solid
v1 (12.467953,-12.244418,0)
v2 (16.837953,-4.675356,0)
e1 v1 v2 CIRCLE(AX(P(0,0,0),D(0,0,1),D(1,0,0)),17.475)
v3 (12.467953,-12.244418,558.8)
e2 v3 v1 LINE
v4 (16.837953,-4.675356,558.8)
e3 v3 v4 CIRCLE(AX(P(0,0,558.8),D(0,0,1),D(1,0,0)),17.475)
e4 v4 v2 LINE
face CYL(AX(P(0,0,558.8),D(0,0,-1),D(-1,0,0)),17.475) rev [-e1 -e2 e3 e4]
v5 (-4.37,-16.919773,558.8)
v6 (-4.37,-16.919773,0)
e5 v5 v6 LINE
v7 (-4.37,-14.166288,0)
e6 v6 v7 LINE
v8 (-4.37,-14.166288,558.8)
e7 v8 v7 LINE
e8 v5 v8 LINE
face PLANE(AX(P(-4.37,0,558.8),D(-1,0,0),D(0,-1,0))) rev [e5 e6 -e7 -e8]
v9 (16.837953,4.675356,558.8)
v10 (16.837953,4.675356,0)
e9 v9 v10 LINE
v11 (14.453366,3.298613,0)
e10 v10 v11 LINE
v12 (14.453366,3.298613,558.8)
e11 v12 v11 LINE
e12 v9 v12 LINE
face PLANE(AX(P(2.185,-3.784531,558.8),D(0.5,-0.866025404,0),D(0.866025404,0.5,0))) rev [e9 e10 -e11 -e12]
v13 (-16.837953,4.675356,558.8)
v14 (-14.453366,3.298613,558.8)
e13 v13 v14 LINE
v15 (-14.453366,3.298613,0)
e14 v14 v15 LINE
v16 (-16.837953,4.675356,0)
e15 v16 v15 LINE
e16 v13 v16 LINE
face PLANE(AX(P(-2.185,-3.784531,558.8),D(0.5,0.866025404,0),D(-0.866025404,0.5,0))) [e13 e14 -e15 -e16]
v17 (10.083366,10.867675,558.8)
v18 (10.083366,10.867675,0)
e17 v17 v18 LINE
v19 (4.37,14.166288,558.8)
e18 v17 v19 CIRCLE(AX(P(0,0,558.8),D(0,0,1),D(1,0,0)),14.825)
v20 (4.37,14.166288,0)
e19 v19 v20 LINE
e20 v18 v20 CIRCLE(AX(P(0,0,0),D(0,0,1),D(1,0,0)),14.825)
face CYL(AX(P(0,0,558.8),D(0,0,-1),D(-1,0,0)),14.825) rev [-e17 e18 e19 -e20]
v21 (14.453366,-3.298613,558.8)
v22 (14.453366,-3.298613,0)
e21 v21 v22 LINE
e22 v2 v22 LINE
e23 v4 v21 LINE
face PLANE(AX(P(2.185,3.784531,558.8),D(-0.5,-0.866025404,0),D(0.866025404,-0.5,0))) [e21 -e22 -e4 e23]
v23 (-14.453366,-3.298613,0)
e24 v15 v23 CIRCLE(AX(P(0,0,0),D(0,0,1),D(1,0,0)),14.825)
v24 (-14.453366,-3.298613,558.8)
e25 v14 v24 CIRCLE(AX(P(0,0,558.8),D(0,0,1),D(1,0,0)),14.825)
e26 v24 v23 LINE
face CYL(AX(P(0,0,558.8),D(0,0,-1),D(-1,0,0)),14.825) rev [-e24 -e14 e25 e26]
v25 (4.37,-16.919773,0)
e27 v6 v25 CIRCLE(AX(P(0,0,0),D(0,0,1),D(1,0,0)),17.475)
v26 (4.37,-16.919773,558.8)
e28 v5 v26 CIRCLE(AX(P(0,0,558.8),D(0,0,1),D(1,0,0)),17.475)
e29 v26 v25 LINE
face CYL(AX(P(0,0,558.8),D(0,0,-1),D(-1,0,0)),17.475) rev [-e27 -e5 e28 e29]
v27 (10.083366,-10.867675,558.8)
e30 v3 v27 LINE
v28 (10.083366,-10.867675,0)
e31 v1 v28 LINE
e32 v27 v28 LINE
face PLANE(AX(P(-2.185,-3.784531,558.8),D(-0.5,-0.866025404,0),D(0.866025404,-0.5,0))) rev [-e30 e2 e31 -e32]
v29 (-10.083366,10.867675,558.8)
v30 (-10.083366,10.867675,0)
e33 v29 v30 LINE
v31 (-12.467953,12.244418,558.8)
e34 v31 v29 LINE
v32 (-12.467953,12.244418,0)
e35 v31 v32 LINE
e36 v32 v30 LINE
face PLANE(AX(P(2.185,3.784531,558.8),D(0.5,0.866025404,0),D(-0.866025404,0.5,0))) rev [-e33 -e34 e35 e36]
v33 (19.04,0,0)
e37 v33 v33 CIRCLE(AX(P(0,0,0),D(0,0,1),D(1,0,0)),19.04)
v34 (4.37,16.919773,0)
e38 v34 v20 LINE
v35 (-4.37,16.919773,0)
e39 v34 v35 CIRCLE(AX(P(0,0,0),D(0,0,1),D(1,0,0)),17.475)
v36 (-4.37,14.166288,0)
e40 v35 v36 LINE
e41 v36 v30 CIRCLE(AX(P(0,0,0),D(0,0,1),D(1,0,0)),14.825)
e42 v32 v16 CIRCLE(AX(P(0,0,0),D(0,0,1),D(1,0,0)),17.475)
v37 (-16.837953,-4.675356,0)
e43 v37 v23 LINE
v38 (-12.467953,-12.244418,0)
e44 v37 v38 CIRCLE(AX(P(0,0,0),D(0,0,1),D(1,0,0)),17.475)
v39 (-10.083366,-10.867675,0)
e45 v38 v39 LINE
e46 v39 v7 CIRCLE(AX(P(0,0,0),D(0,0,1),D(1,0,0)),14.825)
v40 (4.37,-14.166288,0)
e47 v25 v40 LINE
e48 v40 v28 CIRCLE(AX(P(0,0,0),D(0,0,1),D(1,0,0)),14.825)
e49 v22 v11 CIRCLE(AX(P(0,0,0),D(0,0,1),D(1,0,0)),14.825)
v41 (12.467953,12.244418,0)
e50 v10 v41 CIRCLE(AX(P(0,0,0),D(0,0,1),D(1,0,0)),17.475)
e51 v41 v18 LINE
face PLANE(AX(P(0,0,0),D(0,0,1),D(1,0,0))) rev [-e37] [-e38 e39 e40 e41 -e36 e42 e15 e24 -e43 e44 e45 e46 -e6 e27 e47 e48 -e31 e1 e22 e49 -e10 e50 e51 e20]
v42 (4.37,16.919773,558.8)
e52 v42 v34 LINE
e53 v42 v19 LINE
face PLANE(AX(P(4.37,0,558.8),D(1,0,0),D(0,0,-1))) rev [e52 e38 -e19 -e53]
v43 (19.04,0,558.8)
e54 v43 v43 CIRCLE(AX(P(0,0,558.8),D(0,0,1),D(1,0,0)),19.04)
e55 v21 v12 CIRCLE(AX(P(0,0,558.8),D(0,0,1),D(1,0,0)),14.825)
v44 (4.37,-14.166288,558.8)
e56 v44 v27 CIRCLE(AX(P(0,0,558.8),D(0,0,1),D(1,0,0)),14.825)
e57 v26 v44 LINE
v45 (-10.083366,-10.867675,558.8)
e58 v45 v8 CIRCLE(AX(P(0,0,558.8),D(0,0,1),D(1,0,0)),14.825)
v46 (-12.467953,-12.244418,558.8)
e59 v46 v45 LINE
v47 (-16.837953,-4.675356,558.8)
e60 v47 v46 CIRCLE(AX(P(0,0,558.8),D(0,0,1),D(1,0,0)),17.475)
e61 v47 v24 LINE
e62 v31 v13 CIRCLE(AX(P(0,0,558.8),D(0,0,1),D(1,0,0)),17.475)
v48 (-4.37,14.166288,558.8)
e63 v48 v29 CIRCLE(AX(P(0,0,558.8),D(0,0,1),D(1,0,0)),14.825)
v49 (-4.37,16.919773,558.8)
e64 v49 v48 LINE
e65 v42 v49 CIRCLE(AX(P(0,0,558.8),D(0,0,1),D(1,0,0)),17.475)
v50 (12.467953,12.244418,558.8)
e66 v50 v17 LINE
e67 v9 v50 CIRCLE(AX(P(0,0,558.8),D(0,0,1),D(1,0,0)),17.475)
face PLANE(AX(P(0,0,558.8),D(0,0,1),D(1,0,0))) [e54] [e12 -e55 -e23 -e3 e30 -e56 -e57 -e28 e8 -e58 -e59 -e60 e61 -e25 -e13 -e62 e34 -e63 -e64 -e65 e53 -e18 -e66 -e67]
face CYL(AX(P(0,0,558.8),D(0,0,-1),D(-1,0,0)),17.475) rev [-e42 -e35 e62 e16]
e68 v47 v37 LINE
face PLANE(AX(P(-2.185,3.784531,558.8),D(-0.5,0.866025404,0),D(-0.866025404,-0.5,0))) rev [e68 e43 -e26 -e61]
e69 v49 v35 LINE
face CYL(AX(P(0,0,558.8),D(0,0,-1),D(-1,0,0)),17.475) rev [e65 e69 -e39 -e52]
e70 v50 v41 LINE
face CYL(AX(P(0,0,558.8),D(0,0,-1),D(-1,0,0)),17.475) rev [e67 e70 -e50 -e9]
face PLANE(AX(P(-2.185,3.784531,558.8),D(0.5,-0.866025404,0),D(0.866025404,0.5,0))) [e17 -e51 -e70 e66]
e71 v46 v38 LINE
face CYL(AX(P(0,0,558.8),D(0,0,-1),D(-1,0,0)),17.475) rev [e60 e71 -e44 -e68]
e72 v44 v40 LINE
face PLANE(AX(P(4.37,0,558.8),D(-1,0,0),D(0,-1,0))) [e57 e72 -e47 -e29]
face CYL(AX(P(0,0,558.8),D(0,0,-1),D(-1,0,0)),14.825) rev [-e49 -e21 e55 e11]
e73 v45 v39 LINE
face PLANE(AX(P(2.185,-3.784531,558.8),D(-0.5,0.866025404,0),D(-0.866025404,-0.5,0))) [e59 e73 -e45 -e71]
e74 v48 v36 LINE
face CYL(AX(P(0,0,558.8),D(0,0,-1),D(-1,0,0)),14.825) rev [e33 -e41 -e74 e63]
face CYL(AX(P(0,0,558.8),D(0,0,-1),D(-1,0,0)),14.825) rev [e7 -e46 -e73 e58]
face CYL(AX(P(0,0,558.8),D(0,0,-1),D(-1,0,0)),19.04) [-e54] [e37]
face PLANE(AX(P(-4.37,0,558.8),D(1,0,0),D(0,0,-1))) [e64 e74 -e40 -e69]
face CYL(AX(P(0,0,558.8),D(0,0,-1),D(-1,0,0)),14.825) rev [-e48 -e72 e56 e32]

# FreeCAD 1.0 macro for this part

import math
import FreeCAD as App
import Part
import Sketcher
Q = App.Units.Quantity

doc = App.newDocument("Part")
params = doc.addObject("Spreadsheet::Sheet", "Params")
for row, (alias, value) in enumerate([
    ("pad1_length", "22 in"),
], start=1):
    params.set(f"A{row}", alias)
    params.set(f"B{row}", "=" + value)
    params.setAlias(f"B{row}", alias)

body = doc.addObject("PartDesign::Body", "Body")

sketch1 = body.newObject("Sketcher::SketchObject", "Sketch")
sketch1.AttachmentSupport = (doc.getObject("XY_Plane"), [""])
sketch1.MapMode = "FlatFace"
sketch1.addGeometry([
    Part.Circle(App.Vector(0, 0, 0), App.Vector(0, 0, 1), 19.04),
    Part.ArcOfCircle(Part.Circle(App.Vector(0, 0, 0), App.Vector(0, 0, 1), 14.825), math.radians(47.143887), math.radians(72.856113)),
    Part.LineSegment(App.Vector(10.083366, 10.867675, 0), App.Vector(12.467953, 12.244418, 0)),
    Part.ArcOfCircle(Part.Circle(App.Vector(0, 0, 0), App.Vector(0, 0, 1), 17.475), math.radians(15.518255), math.radians(44.481745)),
    Part.LineSegment(App.Vector(16.837953, 4.675356, 0), App.Vector(14.453366, 3.298613, 0)),
    Part.ArcOfCircle(Part.Circle(App.Vector(0, 0, 0), App.Vector(0, 0, 1), 14.825), math.radians(-12.856113), math.radians(12.856113)),
    Part.LineSegment(App.Vector(14.453366, -3.298613, 0), App.Vector(16.837953, -4.675356, 0)),
    Part.ArcOfCircle(Part.Circle(App.Vector(0, 0, 0), App.Vector(0, 0, 1), 17.475), math.radians(-44.481745), math.radians(-15.518255)),
    Part.LineSegment(App.Vector(12.467953, -12.244418, 0), App.Vector(10.083366, -10.867675, 0)),
    Part.ArcOfCircle(Part.Circle(App.Vector(0, 0, 0), App.Vector(0, 0, 1), 14.825), math.radians(-72.856113), math.radians(-47.143887)),
    Part.LineSegment(App.Vector(4.37, -14.166288, 0), App.Vector(4.37, -16.919773, 0)),
    Part.ArcOfCircle(Part.Circle(App.Vector(0, 0, 0), App.Vector(0, 0, 1), 17.475), math.radians(-104.481745), math.radians(-75.518255)),
    Part.LineSegment(App.Vector(-4.37, -16.919773, 0), App.Vector(-4.37, -14.166288, 0)),
    Part.ArcOfCircle(Part.Circle(App.Vector(0, 0, 0), App.Vector(0, 0, 1), 14.825), math.radians(-132.856113), math.radians(-107.143887)),
    Part.LineSegment(App.Vector(-10.083366, -10.867675, 0), App.Vector(-12.467953, -12.244418, 0)),
    Part.ArcOfCircle(Part.Circle(App.Vector(0, 0, 0), App.Vector(0, 0, 1), 17.475), math.radians(-164.481745), math.radians(-135.518255)),
    Part.LineSegment(App.Vector(-16.837953, -4.675356, 0), App.Vector(-14.453366, -3.298613, 0)),
    Part.ArcOfCircle(Part.Circle(App.Vector(0, 0, 0), App.Vector(0, 0, 1), 14.825), math.radians(167.143887), math.radians(192.856113)),
    Part.LineSegment(App.Vector(-14.453366, 3.298613, 0), App.Vector(-16.837953, 4.675356, 0)),
    Part.ArcOfCircle(Part.Circle(App.Vector(0, 0, 0), App.Vector(0, 0, 1), 17.475), math.radians(135.518255), math.radians(164.481745)),
    Part.LineSegment(App.Vector(-12.467953, 12.244418, 0), App.Vector(-10.083366, 10.867675, 0)),
    Part.ArcOfCircle(Part.Circle(App.Vector(0, 0, 0), App.Vector(0, 0, 1), 14.825), math.radians(107.143887), math.radians(132.856113)),
    Part.LineSegment(App.Vector(-4.37, 14.166288, 0), App.Vector(-4.37, 16.919773, 0)),
    Part.ArcOfCircle(Part.Circle(App.Vector(0, 0, 0), App.Vector(0, 0, 1), 17.475), math.radians(75.518255), math.radians(104.481745)),
    Part.LineSegment(App.Vector(4.37, 16.919773, 0), App.Vector(4.37, 14.166288, 0)),
], False)
sketch1.addConstraint([
    Sketcher.Constraint("Coincident", 1, 1, 2, 1),
    Sketcher.Constraint("Coincident", 2, 2, 3, 2),
    Sketcher.Constraint("Coincident", 3, 1, 4, 1),
    Sketcher.Constraint("Coincident", 4, 2, 5, 2),
    Sketcher.Constraint("Coincident", 5, 1, 6, 1),
    Sketcher.Constraint("Coincident", 6, 2, 7, 2),
    Sketcher.Constraint("Coincident", 7, 1, 8, 1),
    Sketcher.Constraint("Coincident", 8, 2, 9, 2),
    Sketcher.Constraint("Coincident", 9, 1, 10, 1),
    Sketcher.Constraint("Coincident", 10, 2, 11, 2),
    Sketcher.Constraint("Coincident", 11, 1, 12, 1),
    Sketcher.Constraint("Coincident", 12, 2, 13, 2),
    Sketcher.Constraint("Coincident", 13, 1, 14, 1),
    Sketcher.Constraint("Coincident", 14, 2, 15, 2),
    Sketcher.Constraint("Coincident", 15, 1, 16, 1),
    Sketcher.Constraint("Coincident", 16, 2, 17, 2),
    Sketcher.Constraint("Coincident", 17, 1, 18, 1),
    Sketcher.Constraint("Coincident", 18, 2, 19, 2),
    Sketcher.Constraint("Coincident", 19, 1, 20, 1),
    Sketcher.Constraint("Coincident", 20, 2, 21, 2),
    Sketcher.Constraint("Coincident", 21, 1, 22, 1),
    Sketcher.Constraint("Coincident", 22, 2, 23, 2),
    Sketcher.Constraint("Coincident", 23, 1, 24, 1),
    Sketcher.Constraint("Coincident", 24, 2, 1, 2),
    Sketcher.Constraint("Vertical", 10),
    Sketcher.Constraint("Vertical", 12),
    Sketcher.Constraint("Vertical", 22),
    Sketcher.Constraint("Vertical", 24),
    Sketcher.Constraint("Coincident", 0, 3, -1, 1),
    Sketcher.Constraint("Coincident", 1, 3, -1, 1),
    Sketcher.Constraint("Coincident", 3, 3, -1, 1),
    Sketcher.Constraint("Coincident", 5, 3, -1, 1),
    Sketcher.Constraint("Coincident", 7, 3, -1, 1),
    Sketcher.Constraint("Coincident", 9, 3, -1, 1),
    Sketcher.Constraint("Coincident", 11, 3, -1, 1),
    Sketcher.Constraint("Coincident", 13, 3, -1, 1),
    Sketcher.Constraint("Coincident", 15, 3, -1, 1),
    Sketcher.Constraint("Coincident", 17, 3, -1, 1),
    Sketcher.Constraint("Coincident", 19, 3, -1, 1),
    Sketcher.Constraint("Coincident", 21, 3, -1, 1),
    Sketcher.Constraint("Coincident", 23, 3, -1, 1),
    Sketcher.Constraint("Equal", 1, 5),
    Sketcher.Constraint("Equal", 3, 7),
    Sketcher.Constraint("Equal", 5, 9),
    Sketcher.Constraint("Equal", 7, 11),
    Sketcher.Constraint("Equal", 9, 13),
    Sketcher.Constraint("Equal", 11, 15),
    Sketcher.Constraint("Equal", 13, 17),
    Sketcher.Constraint("Equal", 15, 19),
    Sketcher.Constraint("Equal", 17, 21),
    Sketcher.Constraint("Equal", 19, 23),
    Sketcher.Constraint("Parallel", 2, 4),
    Sketcher.Constraint("Parallel", 6, 8),
    Sketcher.Constraint("Parallel", 4, 14),
    Sketcher.Constraint("Parallel", 14, 16),
    Sketcher.Constraint("Parallel", 8, 18),
    Sketcher.Constraint("Parallel", 18, 20),
    Sketcher.Constraint("Horizontal", 10, 2, 11, 1),
    Sketcher.Constraint("Horizontal", 8, 2, 13, 1),
    Sketcher.Constraint("Horizontal", 7, 1, 14, 2),
    Sketcher.Constraint("Horizontal", 6, 2, 15, 1),
    Sketcher.Constraint("Horizontal", 4, 2, 17, 1),
    Sketcher.Constraint("Horizontal", 2, 2, 19, 1),
    Sketcher.Constraint("Horizontal", 22, 2, 23, 1),
    Sketcher.Constraint("Vertical", 4, 2, 5, 1),
    Sketcher.Constraint("Vertical", 2, 2, 7, 1),
    Sketcher.Constraint("Vertical", 12, 2, 21, 1),
    Sketcher.Constraint("Equal", 2, 4),
    Sketcher.Constraint("Angle", 2, Q("30 deg")),
    Sketcher.Constraint("Diameter", 0, 38.08),
    Sketcher.Constraint("Radius", 1, 14.825),
    Sketcher.Constraint("Radius", 3, 17.475),
    Sketcher.Constraint("DistanceX", -1, 1, 9, 1, 4.37),
    Sketcher.Constraint("DistanceX", 2, 2, 3, 1, 4.37),
])
pad1 = body.newObject("PartDesign::Pad", "Pad")
pad1.Profile = sketch1
pad1.setExpression("Length", "Params.pad1_length")

doc.recompute()
